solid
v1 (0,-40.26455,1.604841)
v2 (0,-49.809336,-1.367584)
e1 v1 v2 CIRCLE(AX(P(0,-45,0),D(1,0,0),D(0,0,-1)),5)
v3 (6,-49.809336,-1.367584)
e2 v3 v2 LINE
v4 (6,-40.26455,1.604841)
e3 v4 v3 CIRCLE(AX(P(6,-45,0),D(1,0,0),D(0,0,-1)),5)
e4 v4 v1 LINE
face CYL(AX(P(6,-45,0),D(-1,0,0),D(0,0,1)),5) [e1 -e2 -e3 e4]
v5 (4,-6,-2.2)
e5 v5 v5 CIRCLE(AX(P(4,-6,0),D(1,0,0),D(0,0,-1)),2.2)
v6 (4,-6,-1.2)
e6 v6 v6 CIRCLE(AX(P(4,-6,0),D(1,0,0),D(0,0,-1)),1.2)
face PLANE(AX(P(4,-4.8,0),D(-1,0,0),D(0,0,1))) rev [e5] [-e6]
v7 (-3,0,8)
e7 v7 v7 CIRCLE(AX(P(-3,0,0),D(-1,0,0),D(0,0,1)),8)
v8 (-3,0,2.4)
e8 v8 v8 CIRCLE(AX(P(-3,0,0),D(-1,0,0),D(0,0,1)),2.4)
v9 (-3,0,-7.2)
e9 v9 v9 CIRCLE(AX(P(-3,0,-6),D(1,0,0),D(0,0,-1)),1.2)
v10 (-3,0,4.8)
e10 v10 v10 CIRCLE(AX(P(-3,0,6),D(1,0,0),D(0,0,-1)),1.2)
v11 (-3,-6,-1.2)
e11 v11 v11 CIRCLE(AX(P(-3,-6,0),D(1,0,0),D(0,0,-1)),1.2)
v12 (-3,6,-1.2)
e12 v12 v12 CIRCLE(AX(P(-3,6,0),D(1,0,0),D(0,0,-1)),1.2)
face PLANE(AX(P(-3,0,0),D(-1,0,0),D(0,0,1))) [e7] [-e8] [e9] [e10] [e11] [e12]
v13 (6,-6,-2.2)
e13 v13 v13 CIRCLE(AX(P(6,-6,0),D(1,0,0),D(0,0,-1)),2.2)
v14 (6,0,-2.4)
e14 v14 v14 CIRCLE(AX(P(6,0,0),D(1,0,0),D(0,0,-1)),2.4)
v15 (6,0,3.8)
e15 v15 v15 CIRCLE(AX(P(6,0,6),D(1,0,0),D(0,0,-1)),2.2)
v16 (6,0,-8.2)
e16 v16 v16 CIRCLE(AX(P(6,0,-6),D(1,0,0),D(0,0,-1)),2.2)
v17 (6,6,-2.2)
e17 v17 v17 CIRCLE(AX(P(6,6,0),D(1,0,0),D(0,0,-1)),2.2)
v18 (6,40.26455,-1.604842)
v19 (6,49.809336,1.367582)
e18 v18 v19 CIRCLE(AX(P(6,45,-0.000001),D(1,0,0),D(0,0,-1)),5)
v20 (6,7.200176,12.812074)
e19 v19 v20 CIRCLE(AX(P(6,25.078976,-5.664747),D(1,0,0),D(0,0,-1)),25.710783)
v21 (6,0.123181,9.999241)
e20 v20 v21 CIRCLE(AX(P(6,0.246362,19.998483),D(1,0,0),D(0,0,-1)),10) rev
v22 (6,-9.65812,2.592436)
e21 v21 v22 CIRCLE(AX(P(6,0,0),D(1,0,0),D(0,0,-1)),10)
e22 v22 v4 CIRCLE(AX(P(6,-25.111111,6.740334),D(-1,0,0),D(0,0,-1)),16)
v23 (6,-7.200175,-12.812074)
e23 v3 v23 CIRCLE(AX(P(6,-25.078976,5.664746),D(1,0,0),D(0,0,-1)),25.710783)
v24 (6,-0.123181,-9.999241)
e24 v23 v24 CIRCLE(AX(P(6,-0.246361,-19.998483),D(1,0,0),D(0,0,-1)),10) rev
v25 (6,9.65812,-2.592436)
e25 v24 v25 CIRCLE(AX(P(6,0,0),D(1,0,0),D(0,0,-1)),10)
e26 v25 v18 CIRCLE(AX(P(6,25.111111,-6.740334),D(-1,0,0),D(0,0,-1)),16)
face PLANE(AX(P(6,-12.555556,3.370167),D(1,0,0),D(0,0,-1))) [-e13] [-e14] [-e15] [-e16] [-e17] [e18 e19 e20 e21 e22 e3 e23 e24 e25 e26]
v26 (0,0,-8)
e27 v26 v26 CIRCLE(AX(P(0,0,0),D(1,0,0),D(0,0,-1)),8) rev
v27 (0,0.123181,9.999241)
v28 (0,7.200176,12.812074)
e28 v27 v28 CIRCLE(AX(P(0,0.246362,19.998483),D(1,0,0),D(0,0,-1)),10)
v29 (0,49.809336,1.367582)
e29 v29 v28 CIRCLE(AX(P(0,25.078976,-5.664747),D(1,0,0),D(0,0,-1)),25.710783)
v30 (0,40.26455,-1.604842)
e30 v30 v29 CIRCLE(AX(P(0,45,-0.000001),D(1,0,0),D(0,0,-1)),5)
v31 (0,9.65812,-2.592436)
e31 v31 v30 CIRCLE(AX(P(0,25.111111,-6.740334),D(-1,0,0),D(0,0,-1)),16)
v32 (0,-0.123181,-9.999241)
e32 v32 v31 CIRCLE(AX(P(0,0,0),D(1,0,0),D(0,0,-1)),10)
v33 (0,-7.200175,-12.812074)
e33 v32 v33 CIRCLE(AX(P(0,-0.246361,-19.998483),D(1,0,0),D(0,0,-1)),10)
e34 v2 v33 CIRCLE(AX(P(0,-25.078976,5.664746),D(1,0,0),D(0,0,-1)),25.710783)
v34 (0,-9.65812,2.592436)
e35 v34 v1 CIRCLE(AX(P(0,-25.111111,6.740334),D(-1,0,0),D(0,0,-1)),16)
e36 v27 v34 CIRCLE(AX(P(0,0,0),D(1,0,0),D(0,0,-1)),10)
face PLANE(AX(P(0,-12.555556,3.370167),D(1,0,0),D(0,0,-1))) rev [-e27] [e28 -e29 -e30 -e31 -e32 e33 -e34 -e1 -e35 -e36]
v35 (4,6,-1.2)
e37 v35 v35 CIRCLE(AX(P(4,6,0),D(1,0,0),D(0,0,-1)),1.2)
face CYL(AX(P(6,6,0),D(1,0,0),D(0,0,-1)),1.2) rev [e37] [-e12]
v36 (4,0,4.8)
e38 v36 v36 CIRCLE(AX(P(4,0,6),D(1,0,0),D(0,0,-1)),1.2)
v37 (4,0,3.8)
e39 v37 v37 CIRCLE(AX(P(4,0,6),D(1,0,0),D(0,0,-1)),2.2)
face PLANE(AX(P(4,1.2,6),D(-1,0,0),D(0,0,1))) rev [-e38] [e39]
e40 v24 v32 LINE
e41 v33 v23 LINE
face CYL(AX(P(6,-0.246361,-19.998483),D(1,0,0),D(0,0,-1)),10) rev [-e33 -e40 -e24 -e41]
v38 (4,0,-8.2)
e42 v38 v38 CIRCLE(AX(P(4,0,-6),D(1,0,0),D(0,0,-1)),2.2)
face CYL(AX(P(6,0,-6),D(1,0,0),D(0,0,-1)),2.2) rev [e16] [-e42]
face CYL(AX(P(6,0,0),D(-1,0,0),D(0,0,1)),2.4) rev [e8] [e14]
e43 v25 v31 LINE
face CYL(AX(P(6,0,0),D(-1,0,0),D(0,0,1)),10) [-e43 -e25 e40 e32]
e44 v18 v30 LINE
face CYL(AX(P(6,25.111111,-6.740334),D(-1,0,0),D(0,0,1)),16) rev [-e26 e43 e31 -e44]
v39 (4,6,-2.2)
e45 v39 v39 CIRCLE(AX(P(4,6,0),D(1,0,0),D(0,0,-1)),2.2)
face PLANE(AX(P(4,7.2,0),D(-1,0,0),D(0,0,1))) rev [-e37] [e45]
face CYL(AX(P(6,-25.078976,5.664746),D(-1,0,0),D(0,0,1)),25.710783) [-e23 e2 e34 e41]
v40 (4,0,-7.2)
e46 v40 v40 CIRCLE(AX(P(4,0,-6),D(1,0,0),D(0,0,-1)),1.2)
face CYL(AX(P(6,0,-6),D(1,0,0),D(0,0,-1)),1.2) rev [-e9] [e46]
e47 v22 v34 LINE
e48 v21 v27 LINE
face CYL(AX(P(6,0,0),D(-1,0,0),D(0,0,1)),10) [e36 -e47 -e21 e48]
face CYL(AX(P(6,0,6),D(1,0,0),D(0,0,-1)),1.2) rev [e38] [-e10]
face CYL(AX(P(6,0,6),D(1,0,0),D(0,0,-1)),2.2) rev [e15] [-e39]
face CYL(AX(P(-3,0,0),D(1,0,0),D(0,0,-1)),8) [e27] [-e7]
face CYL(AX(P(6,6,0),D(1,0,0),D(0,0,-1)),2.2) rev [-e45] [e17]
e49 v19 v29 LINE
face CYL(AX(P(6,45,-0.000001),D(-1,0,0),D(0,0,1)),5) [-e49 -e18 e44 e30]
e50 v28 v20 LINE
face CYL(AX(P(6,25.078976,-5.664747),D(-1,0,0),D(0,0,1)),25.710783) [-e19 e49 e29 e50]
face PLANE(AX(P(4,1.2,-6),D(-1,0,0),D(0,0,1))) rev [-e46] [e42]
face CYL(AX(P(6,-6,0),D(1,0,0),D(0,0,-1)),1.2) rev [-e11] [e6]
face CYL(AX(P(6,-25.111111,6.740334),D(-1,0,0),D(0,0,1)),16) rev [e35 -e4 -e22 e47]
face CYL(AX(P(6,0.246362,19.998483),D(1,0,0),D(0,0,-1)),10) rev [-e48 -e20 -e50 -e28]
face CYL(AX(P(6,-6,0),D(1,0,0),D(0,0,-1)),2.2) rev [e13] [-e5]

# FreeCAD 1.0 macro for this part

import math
import FreeCAD as App
import Part
import Sketcher

V = App.Vector


def edges_at(feature, points):
    """Names of the edges that pass closest to the given points."""
    edges = feature.Shape.Edges
    near = lambda p: min(range(len(edges)), key=lambda i: edges[i].distToShape(Part.Vertex(*p))[0])
    return sorted({f"Edge{near(p) + 1}" for p in points})

doc = App.newDocument("Part")
body = doc.addObject("PartDesign::Body", "Body")

# Sketch on YZ plane
sketch1 = body.newObject("Sketcher::SketchObject", "Sketch")
sketch1.AttachmentSupport = (doc.getObject("YZ_Plane"), [""])
sketch1.MapMode = "FlatFace"
sketch1.addGeometry(Part.ArcOfCircle(Part.Circle(V(0, 0, 0), V(0, 0, 1), 10), math.radians(-114), math.radians(-15)), False)
sketch1.addGeometry(Part.ArcOfCircle(Part.Circle(V(25.1, -6.7, 0), V(0, 0, 1), 16), math.radians(19), math.radians(165)), False)
sketch1.addGeometry(Part.ArcOfCircle(Part.Circle(V(45, 0, 0), V(0, 0, 1), 5), math.radians(-161), math.radians(16)), False)
sketch1.addGeometry(Part.ArcOfCircle(Part.Circle(V(25.1, -5.7, 0), V(0, 0, 1), 25.7), math.radians(16), math.radians(145)), False)
sketch1.addGeometry(Part.ArcOfCircle(Part.Circle(V(0, 0, 0), V(0, 0, 1), 10), math.radians(66), math.radians(165)), False)
sketch1.addGeometry(Part.ArcOfCircle(Part.Circle(V(-25.1, 6.7, 0), V(0, 0, 1), 16), math.radians(-161), math.radians(-15)), False)
sketch1.addGeometry(Part.ArcOfCircle(Part.Circle(V(-45, 0, 0), V(0, 0, 1), 5), math.radians(19), math.radians(196)), False)
sketch1.addGeometry(Part.ArcOfCircle(Part.Circle(V(-25.1, 5.7, 0), V(0, 0, 1), 25.7), math.radians(-164), math.radians(-35)), False)
sketch1.addGeometry(Part.Circle(V(0, 0, 0), V(0, 0, 1), 2.4), False)
sketch1.addConstraint(Sketcher.Constraint("Tangent", 0, 2, 1, 2))
sketch1.addConstraint(Sketcher.Constraint("Tangent", 1, 1, 2, 1))
sketch1.addConstraint(Sketcher.Constraint("Tangent", 2, 2, 3, 1))
sketch1.addConstraint(Sketcher.Constraint("Coincident", 3, 2, 4, 1))
sketch1.addConstraint(Sketcher.Constraint("Tangent", 4, 2, 5, 2))
sketch1.addConstraint(Sketcher.Constraint("Tangent", 5, 1, 6, 1))
sketch1.addConstraint(Sketcher.Constraint("Tangent", 6, 2, 7, 1))
sketch1.addConstraint(Sketcher.Constraint("Coincident", 7, 2, 0, 1))
sketch1.addConstraint(Sketcher.Constraint("Coincident", 0, 3, -1, 1))
sketch1.addConstraint(Sketcher.Constraint("Coincident", 4, 3, -1, 1))
sketch1.addConstraint(Sketcher.Constraint("Coincident", 8, 3, -1, 1))
sketch1.addConstraint(Sketcher.Constraint("Equal", 0, 4))
sketch1.addConstraint(Sketcher.Constraint("Equal", 1, 5))
sketch1.addConstraint(Sketcher.Constraint("Equal", 2, 6))
sketch1.addConstraint(Sketcher.Constraint("Equal", 3, 7))
sketch1.addConstraint(Sketcher.Constraint("Symmetric", 2, 3, 6, 3, -1, 1))
sketch1.addConstraint(Sketcher.Constraint("PointOnObject", 2, 3, -1))
sketch1.addConstraint(Sketcher.Constraint("Radius", 0, 10.0))
sketch1.addConstraint(Sketcher.Constraint("Radius", 1, 16.0))
sketch1.addConstraint(Sketcher.Constraint("Radius", 2, 5.0))
sketch1.addConstraint(Sketcher.Constraint("Diameter", 8, 4.8))
sketch1.addConstraint(Sketcher.Constraint("DistanceX", -1, 1, 2, 3, 45.0))
sketch1.addConstraint(Sketcher.Constraint("Radius", 3, 25.710783))
sketch1.addConstraint(Sketcher.Constraint("DistanceY", -1, 1, 3, 2, 9.139568))
sketch1.addConstraint(Sketcher.Constraint("DistanceY", 7, 2, -1, 1, 9.139569))
pad1 = body.newObject("PartDesign::Pad", "Pad")
pad1.Profile = sketch1
pad1.Length = 6

# Sketch on YZ plane
sketch2 = body.newObject("Sketcher::SketchObject", "Sketch001")
sketch2.AttachmentSupport = (doc.getObject("YZ_Plane"), [""])
sketch2.MapMode = "FlatFace"
sketch2.addGeometry(Part.Circle(V(0, 0, 0), V(0, 0, 1), 8), False)
sketch2.addGeometry(Part.Circle(V(0, 0, 0), V(0, 0, 1), 2.4), False)
sketch2.addConstraint(Sketcher.Constraint("Coincident", 0, 3, -1, 1))
sketch2.addConstraint(Sketcher.Constraint("Coincident", 1, 3, -1, 1))
sketch2.addConstraint(Sketcher.Constraint("Diameter", 0, 16.0))
sketch2.addConstraint(Sketcher.Constraint("Diameter", 1, 4.8))
pad2 = body.newObject("PartDesign::Pad", "Pad001")
pad2.Profile = sketch2
pad2.Length = 3
pad2.Reversed = True

# Sketch on YZ plane
sketch3 = body.newObject("Sketcher::SketchObject", "Sketch002")
sketch3.AttachmentSupport = (doc.getObject("YZ_Plane"), [""])
sketch3.MapMode = "FlatFace"
sketch3.AttachmentOffset = App.Placement(V(0, 0, 6), App.Rotation())
sketch3.addGeometry(Part.Circle(V(-6, 0, 0), V(0, 0, 1), 1.2), False)
sketch3.addGeometry(Part.Circle(V(0, 6, 0), V(0, 0, 1), 1.2), False)
sketch3.addGeometry(Part.Circle(V(6, 0, 0), V(0, 0, 1), 1.2), False)
sketch3.addGeometry(Part.Circle(V(0, -6, 0), V(0, 0, 1), 1.2), False)
sketch3.addConstraint(Sketcher.Constraint("Equal", 0, 1))
sketch3.addConstraint(Sketcher.Constraint("Equal", 1, 2))
sketch3.addConstraint(Sketcher.Constraint("Equal", 2, 3))
sketch3.addConstraint(Sketcher.Constraint("Symmetric", 0, 3, 2, 3, -1, 1))
sketch3.addConstraint(Sketcher.Constraint("Symmetric", 1, 3, 3, 3, -1, 1))
sketch3.addConstraint(Sketcher.Constraint("PointOnObject", 0, 3, -1))
sketch3.addConstraint(Sketcher.Constraint("PointOnObject", 1, 3, -2))
sketch3.addConstraint(Sketcher.Constraint("Diameter", 0, 2.4))
sketch3.addConstraint(Sketcher.Constraint("DistanceX", 0, 3, -1, 1, 6.0))
sketch3.addConstraint(Sketcher.Constraint("DistanceY", -1, 1, 1, 3, 6.0))
doc.recompute()
hole = body.newObject("PartDesign::Hole", "Hole")
hole.Profile = sketch3
hole.ThreadType = "None"
hole.Diameter = 2.4
hole.DepthType = "ThroughAll"
hole.HoleCutType = "Counterbore"
hole.HoleCutDiameter = 4.4
hole.HoleCutDepth = 2
doc.recompute()

fillet = body.newObject("PartDesign::Fillet", "Fillet")
fillet.Base = (hole, edges_at(hole, [(3, 4.058, 9.14), (3, -4.058, -9.14)]))
fillet.Radius = 10

doc.recompute()
